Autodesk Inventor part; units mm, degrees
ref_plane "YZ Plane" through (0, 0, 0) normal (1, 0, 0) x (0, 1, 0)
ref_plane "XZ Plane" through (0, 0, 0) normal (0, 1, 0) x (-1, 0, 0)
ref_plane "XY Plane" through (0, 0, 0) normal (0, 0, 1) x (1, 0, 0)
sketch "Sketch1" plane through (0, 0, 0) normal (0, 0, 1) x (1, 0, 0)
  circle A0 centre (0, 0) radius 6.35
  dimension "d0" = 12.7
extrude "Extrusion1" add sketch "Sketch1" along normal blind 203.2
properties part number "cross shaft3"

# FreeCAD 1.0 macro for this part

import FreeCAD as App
import Part
import Sketcher

V = App.Vector
Q = App.Units.Quantity

doc = App.newDocument("Part")
body = doc.addObject("PartDesign::Body", "Body")

# Sketch on XY plane
sketch1 = body.newObject("Sketcher::SketchObject", "Sketch")
sketch1.AttachmentSupport = (doc.getObject("XY_Plane"), [""])
sketch1.MapMode = "FlatFace"
sketch1.addGeometry(Part.Circle(V(0, 0, 0), V(0, 0, 1), 6), False)
sketch1.addConstraint(Sketcher.Constraint("Coincident", 0, 3, -1, 1))
sketch1.addConstraint(Sketcher.Constraint("Diameter", 0, Q("0.5 in")))
pad1 = body.newObject("PartDesign::Pad", "Pad")
pad1.Profile = sketch1
pad1.Length = Q("8 in")

doc.recompute()
